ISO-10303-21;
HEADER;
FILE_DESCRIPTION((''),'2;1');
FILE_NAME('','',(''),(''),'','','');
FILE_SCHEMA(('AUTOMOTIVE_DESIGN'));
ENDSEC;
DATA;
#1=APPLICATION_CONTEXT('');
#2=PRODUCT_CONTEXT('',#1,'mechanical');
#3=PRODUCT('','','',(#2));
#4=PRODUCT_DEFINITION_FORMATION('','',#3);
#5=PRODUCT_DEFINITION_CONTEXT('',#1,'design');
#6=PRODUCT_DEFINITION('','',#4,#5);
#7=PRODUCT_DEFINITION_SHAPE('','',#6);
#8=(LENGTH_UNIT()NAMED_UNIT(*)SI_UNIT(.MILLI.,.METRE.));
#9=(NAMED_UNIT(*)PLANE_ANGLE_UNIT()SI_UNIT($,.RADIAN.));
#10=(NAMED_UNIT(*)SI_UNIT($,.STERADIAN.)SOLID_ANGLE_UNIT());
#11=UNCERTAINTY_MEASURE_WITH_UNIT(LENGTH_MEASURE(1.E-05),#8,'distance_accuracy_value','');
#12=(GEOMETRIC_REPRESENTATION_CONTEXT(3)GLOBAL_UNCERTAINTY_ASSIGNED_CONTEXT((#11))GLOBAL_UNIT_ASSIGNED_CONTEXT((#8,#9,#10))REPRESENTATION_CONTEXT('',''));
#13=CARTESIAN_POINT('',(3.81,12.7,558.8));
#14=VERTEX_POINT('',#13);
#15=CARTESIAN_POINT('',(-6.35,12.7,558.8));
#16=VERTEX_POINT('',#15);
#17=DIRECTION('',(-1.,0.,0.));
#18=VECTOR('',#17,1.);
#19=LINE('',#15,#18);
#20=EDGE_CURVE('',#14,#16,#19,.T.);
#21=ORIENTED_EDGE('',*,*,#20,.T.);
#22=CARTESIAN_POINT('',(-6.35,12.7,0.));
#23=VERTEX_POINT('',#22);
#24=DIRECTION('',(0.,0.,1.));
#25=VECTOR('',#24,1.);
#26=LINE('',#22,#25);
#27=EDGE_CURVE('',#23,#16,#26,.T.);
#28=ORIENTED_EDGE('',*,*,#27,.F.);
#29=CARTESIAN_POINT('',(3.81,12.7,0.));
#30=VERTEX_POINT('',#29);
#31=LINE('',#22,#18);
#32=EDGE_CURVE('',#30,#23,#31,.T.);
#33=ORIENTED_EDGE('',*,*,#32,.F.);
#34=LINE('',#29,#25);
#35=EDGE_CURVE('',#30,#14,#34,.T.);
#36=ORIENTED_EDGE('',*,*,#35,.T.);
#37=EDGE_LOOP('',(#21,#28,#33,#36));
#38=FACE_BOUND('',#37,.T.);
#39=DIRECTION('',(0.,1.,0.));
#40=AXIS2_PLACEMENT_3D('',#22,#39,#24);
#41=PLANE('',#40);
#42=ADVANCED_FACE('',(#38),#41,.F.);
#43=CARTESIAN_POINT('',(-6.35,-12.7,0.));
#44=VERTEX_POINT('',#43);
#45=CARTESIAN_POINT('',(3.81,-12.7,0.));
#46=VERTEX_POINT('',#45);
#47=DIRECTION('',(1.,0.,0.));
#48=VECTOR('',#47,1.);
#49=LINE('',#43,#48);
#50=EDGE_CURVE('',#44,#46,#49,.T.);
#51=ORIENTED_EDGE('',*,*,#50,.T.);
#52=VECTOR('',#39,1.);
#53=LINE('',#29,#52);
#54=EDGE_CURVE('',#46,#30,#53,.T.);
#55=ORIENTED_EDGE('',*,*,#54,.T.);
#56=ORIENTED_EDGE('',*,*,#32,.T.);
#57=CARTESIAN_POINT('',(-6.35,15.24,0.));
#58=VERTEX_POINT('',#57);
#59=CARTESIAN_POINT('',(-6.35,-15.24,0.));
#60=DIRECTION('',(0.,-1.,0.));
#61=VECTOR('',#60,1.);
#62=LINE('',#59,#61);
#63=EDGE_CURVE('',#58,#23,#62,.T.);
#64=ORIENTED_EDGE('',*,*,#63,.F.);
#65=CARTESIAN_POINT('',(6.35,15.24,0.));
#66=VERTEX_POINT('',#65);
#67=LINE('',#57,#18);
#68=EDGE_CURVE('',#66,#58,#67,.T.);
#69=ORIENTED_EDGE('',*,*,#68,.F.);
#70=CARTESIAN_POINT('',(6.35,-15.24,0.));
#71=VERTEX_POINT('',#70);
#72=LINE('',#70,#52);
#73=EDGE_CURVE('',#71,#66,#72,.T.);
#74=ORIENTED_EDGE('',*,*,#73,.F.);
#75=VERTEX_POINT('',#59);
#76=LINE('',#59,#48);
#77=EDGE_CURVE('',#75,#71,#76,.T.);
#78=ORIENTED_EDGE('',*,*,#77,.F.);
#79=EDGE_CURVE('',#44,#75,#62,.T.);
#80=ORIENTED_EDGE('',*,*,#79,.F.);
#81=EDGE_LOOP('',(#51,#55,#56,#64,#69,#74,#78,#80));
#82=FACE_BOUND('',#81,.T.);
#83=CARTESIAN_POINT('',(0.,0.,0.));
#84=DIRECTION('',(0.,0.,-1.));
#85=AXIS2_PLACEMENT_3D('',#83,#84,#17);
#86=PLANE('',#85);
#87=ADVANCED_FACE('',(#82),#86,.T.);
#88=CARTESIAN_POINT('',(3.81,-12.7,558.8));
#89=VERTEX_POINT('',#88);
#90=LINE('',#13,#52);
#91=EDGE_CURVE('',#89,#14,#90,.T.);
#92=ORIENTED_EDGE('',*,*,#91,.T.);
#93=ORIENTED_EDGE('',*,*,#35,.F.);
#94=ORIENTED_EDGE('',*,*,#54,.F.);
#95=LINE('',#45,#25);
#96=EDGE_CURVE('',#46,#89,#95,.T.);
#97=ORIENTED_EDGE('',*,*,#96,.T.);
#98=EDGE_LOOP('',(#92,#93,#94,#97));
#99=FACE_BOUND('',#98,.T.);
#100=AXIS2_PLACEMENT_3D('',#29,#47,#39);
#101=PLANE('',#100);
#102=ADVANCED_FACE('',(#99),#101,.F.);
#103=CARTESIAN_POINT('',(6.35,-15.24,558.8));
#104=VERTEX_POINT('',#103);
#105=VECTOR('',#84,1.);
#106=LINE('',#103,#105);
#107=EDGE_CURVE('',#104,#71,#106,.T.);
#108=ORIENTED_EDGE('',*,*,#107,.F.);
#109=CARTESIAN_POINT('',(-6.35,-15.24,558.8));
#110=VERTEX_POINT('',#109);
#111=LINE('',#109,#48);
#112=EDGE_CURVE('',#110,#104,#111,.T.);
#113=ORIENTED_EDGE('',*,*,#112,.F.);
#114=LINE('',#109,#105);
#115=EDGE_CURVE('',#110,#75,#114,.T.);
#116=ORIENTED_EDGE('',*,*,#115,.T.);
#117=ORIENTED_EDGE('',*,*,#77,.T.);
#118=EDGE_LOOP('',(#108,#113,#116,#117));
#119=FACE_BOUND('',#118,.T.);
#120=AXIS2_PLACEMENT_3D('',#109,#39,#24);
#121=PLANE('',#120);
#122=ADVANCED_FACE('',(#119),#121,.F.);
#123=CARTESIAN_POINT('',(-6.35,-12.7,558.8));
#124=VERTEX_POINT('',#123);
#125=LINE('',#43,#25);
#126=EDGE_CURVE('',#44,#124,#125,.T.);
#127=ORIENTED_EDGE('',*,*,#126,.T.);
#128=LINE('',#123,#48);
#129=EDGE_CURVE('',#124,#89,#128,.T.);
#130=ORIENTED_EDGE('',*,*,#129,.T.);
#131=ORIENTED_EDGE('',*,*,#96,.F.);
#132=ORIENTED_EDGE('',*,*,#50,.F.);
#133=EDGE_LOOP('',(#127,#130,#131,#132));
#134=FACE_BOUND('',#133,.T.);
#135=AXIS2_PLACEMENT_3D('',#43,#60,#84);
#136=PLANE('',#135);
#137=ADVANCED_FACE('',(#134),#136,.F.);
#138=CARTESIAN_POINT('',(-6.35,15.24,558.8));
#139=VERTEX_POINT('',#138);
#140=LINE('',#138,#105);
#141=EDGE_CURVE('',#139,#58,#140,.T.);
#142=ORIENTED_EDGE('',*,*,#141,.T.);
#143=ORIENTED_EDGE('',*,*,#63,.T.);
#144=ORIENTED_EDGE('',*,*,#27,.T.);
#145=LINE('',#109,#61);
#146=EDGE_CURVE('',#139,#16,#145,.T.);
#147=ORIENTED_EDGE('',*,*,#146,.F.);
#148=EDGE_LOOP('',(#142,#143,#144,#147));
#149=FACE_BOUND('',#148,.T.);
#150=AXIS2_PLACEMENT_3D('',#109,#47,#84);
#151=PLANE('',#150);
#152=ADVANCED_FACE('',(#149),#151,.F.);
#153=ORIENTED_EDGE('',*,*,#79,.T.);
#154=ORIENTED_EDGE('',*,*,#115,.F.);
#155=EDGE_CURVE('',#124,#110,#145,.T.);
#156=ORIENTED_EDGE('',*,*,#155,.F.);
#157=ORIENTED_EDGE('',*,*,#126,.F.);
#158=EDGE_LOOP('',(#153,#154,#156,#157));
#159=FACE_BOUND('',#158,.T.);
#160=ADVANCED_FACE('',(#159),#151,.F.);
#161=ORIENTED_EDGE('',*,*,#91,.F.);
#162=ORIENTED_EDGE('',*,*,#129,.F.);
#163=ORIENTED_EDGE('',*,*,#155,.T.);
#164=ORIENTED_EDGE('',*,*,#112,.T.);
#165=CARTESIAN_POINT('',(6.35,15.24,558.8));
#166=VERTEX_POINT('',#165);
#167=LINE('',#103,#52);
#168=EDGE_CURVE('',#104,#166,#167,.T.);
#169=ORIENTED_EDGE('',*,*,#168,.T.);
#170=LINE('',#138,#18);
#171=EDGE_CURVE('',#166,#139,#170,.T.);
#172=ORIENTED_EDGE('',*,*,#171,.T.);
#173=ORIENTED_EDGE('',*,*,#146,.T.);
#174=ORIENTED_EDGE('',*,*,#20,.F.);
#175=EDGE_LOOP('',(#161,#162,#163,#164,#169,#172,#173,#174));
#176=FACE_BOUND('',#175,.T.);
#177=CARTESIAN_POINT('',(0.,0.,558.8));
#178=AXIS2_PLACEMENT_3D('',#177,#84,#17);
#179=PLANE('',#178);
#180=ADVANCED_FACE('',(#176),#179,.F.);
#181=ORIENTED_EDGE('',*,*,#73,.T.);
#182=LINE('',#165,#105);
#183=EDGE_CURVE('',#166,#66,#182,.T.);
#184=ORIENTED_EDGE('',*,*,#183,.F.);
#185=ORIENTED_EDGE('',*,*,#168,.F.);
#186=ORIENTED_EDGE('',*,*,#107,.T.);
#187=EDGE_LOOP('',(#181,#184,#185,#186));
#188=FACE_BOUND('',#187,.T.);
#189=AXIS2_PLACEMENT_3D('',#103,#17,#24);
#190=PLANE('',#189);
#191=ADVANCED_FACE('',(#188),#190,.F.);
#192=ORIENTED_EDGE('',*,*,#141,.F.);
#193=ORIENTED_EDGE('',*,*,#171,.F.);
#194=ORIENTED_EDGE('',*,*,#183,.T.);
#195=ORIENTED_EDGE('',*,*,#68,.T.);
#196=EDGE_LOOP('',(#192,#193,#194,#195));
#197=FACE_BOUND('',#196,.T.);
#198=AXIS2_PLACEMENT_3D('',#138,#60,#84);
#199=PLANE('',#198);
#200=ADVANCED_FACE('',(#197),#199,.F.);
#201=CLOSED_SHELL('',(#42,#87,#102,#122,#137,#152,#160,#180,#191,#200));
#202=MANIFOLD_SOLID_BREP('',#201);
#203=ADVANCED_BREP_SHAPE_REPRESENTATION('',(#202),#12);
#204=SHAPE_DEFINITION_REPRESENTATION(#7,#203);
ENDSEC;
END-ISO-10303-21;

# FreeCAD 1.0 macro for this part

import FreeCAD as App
import Part
import Sketcher
Q = App.Units.Quantity

doc = App.newDocument("Part")
body = doc.addObject("PartDesign::Body", "Body")

# Sketch on XY plane
sketch1 = doc.addObject("Sketcher::SketchObject", "Sketch")
body.addObject(sketch1)
sketch1.AttachmentSupport = (doc.XY_Plane, [""])
sketch1.MapMode = "FlatFace"
sketch1.addGeometry([
    Part.LineSegment(App.Vector(-6, 15, 0), App.Vector(-6, -15, 0)),
    Part.LineSegment(App.Vector(-6, -15, 0), App.Vector(6, -15, 0)),
    Part.LineSegment(App.Vector(6, -15, 0), App.Vector(6, 15, 0)),
    Part.LineSegment(App.Vector(6, 15, 0), App.Vector(-6, 15, 0)),
], False)
sketch1.addConstraint([
    Sketcher.Constraint("Coincident", 0, 2, 1, 1),
    Sketcher.Constraint("Coincident", 1, 2, 2, 1),
    Sketcher.Constraint("Coincident", 2, 2, 3, 1),
    Sketcher.Constraint("Coincident", 3, 2, 0, 1),
    Sketcher.Constraint("Vertical", 0),
    Sketcher.Constraint("Horizontal", 1),
    Sketcher.Constraint("Vertical", 2),
    Sketcher.Constraint("Horizontal", 3),
    Sketcher.Constraint("Symmetric", 0, 2, 2, 2, -1, 1),
    Sketcher.Constraint("DistanceX", 1, 1, 1, 2, Q("0.5 in")),
    Sketcher.Constraint("DistanceY", 0, 2, 0, 1, Q("1.2 in")),
])
pad1 = doc.addObject("PartDesign::Pad", "Pad")
body.addObject(pad1)
pad1.Profile = sketch1
pad1.Length = Q("22 in")

# Sketch on XY plane
sketch2 = doc.addObject("Sketcher::SketchObject", "Sketch001")
body.addObject(sketch2)
sketch2.AttachmentSupport = (doc.XY_Plane, [""])
sketch2.MapMode = "FlatFace"
sketch2.AttachmentOffset = App.Placement(App.Vector(0, 0, 22 * 25.4), App.Rotation())
sketch2.addGeometry([
    Part.LineSegment(App.Vector(-6, 13, 0), App.Vector(-6, -13, 0)),
    Part.LineSegment(App.Vector(-6, -13, 0), App.Vector(4, -13, 0)),
    Part.LineSegment(App.Vector(4, -13, 0), App.Vector(4, 13, 0)),
    Part.LineSegment(App.Vector(4, 13, 0), App.Vector(-6, 13, 0)),
], False)
sketch2.addConstraint([
    Sketcher.Constraint("Coincident", 0, 2, 1, 1),
    Sketcher.Constraint("Coincident", 1, 2, 2, 1),
    Sketcher.Constraint("Coincident", 2, 2, 3, 1),
    Sketcher.Constraint("Coincident", 3, 2, 0, 1),
    Sketcher.Constraint("Vertical", 0),
    Sketcher.Constraint("Horizontal", 1),
    Sketcher.Constraint("Vertical", 2),
    Sketcher.Constraint("Horizontal", 3),
    Sketcher.Constraint("DistanceY", 0, 2, 0, 1, Q("1 in")),
    Sketcher.Constraint("DistanceX", 1, 1, 1, 2, Q("0.4 in")),
    Sketcher.Constraint("DistanceY", 0, 2, -1, 1, Q("0.5 in")),
    Sketcher.Constraint("DistanceX", 0, 2, -1, 1, Q("0.25 in")),
])
pocket1 = doc.addObject("PartDesign::Pocket", "Pocket")
body.addObject(pocket1)
pocket1.Profile = sketch2
pocket1.Type = "ThroughAll"

doc.recompute()
